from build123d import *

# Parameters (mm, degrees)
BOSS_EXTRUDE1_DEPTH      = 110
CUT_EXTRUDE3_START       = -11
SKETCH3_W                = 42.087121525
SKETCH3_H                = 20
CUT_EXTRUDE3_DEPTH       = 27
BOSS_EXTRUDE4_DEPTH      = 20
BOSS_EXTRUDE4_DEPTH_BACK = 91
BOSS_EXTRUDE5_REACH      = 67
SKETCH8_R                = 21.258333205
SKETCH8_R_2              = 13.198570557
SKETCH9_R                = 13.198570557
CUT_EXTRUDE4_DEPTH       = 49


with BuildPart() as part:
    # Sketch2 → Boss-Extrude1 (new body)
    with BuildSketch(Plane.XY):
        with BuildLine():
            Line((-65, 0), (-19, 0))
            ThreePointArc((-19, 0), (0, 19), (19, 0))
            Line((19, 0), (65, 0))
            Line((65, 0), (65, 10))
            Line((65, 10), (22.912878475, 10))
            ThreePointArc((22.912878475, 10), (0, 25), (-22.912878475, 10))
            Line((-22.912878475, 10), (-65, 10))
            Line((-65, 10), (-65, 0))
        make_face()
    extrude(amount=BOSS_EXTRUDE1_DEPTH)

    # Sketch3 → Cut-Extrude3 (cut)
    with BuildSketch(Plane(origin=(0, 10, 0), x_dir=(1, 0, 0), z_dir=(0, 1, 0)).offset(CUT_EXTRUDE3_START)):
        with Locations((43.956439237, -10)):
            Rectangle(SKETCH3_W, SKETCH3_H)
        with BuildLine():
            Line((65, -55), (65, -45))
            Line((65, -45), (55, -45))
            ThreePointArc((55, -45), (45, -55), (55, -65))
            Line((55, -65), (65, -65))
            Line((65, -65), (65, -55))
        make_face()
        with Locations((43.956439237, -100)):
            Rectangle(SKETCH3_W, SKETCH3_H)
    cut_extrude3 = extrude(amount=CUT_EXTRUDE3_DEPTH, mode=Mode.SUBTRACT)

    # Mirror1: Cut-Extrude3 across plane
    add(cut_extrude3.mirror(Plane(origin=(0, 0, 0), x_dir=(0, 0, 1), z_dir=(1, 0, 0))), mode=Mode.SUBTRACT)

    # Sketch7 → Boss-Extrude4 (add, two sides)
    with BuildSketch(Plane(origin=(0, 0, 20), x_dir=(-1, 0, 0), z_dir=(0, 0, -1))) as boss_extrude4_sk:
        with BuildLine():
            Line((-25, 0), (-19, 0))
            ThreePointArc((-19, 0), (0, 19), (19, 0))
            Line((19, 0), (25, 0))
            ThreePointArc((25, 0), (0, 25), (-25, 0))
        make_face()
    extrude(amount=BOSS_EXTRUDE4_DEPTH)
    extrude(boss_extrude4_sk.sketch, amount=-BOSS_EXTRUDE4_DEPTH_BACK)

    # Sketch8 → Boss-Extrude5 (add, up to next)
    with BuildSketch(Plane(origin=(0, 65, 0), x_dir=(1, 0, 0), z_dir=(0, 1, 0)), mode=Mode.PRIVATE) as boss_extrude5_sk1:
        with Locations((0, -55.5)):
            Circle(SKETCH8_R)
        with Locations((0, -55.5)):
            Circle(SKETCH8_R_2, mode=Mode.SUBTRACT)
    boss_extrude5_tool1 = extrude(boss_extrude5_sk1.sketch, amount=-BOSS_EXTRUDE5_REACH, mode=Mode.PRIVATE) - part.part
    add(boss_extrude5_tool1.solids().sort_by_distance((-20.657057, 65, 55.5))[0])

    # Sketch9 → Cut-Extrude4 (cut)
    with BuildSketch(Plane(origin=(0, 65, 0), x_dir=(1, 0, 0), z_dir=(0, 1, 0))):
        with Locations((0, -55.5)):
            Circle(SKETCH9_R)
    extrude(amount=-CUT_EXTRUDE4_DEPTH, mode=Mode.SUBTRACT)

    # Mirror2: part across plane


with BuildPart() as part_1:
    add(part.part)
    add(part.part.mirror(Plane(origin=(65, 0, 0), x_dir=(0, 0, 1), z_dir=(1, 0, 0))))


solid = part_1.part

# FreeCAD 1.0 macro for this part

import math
import FreeCAD as App
import Part
import Sketcher
Q = App.Units.Quantity

doc = App.newDocument("Part")
body = doc.addObject("PartDesign::Body", "Body")

# Sketch on XY plane
sketch1 = body.newObject("Sketcher::SketchObject", "Sketch")
sketch1.AttachmentSupport = (doc.getObject("XY_Plane"), [""])
sketch1.MapMode = "FlatFace"
sketch1.addGeometry([
    Part.LineSegment(App.Vector(-65, 0, 0), App.Vector(-19, 0, 0)),  # 0
    Part.ArcOfCircle(Part.Circle(App.Vector(0, 0, 0), App.Vector(0, 0, 1), 19), math.radians(0), math.radians(180)),  # 1
    Part.LineSegment(App.Vector(19, 0, 0), App.Vector(65, 0, 0)),  # 2
    Part.LineSegment(App.Vector(65, 0, 0), App.Vector(65, 10, 0)),  # 3
    Part.LineSegment(App.Vector(65, 10, 0), App.Vector(22.912878, 10, 0)),  # 4
    Part.ArcOfCircle(Part.Circle(App.Vector(0, 0, 0), App.Vector(0, 0, 1), 25), math.radians(23.578178), math.radians(156.421822)),  # 5
    Part.LineSegment(App.Vector(-22.912878, 10, 0), App.Vector(-65, 10, 0)),  # 6
    Part.LineSegment(App.Vector(-65, 10, 0), App.Vector(-65, 0, 0)),  # 7
], False)
sketch1.addConstraint([
    Sketcher.Constraint("Coincident", 0, 2, 1, 2),
    Sketcher.Constraint("Coincident", 1, 1, 2, 1),
    Sketcher.Constraint("Coincident", 2, 2, 3, 1),
    Sketcher.Constraint("Coincident", 3, 2, 4, 1),
    Sketcher.Constraint("Coincident", 4, 2, 5, 1),
    Sketcher.Constraint("Coincident", 5, 2, 6, 1),
    Sketcher.Constraint("Coincident", 6, 2, 7, 1),
    Sketcher.Constraint("Coincident", 7, 2, 0, 1),
    Sketcher.Constraint("Horizontal", 0),
    Sketcher.Constraint("Horizontal", 2),
    Sketcher.Constraint("Vertical", 3),
    Sketcher.Constraint("Horizontal", 4),
    Sketcher.Constraint("Horizontal", 6),
    Sketcher.Constraint("Vertical", 7),
    Sketcher.Constraint("Coincident", 1, 3, -1, 1),
    Sketcher.Constraint("Coincident", 5, 3, -1, 1),
    Sketcher.Constraint("Symmetric", 2, 2, 7, 2, -1, 1),
    Sketcher.Constraint("PointOnObject", 0, 2, -1),
    Sketcher.Constraint("Horizontal", 4, 2, 5, 2),
    Sketcher.Constraint("Radius", 1, Q("19 mm")),
    Sketcher.Constraint("Radius", 5, Q("25 mm")),
    Sketcher.Constraint("DistanceX", 0, 1, 0, 2, Q("46 mm")),
    Sketcher.Constraint("DistanceY", 3, 1, 3, 2, Q("10 mm")),
])
pad1 = body.newObject("PartDesign::Pad", "Pad")
pad1.Profile = sketch1
pad1.Length = 110

# Sketch on XZ plane
sketch2 = body.newObject("Sketcher::SketchObject", "Sketch001")
sketch2.AttachmentSupport = (doc.getObject("XZ_Plane"), [""])
sketch2.MapMode = "FlatFace"
sketch2.AttachmentOffset = App.Placement(App.Vector(0, 0, 1), App.Rotation())
sketch2.addGeometry([
    Part.LineSegment(App.Vector(22.912878, 0, 0), App.Vector(22.912878, 20, 0)),  # 0
    Part.LineSegment(App.Vector(22.912878, 20, 0), App.Vector(65, 20, 0)),  # 1
    Part.LineSegment(App.Vector(65, 20, 0), App.Vector(65, 0, 0)),  # 2
    Part.LineSegment(App.Vector(65, 0, 0), App.Vector(22.912878, 0, 0)),  # 3
    Part.LineSegment(App.Vector(65, 45, 0), App.Vector(55, 45, 0)),  # 4
    Part.ArcOfCircle(Part.Circle(App.Vector(55, 55, 0), App.Vector(0, 0, 1), 10), math.radians(90), math.radians(270)),  # 5
    Part.LineSegment(App.Vector(55, 65, 0), App.Vector(65, 65, 0)),  # 6
    Part.LineSegment(App.Vector(65, 65, 0), App.Vector(65, 45, 0)),  # 7
    Part.LineSegment(App.Vector(22.912878, 90, 0), App.Vector(22.912878, 110, 0)),  # 8
    Part.LineSegment(App.Vector(22.912878, 110, 0), App.Vector(65, 110, 0)),  # 9
    Part.LineSegment(App.Vector(65, 110, 0), App.Vector(65, 90, 0)),  # 10
    Part.LineSegment(App.Vector(65, 90, 0), App.Vector(22.912878, 90, 0)),  # 11
], False)
sketch2.addConstraint([
    Sketcher.Constraint("Coincident", 0, 2, 1, 1),
    Sketcher.Constraint("Coincident", 1, 2, 2, 1),
    Sketcher.Constraint("Coincident", 2, 2, 3, 1),
    Sketcher.Constraint("Coincident", 3, 2, 0, 1),
    Sketcher.Constraint("Tangent", 4, 2, 5, 2),
    Sketcher.Constraint("Tangent", 5, 1, 6, 1),
    Sketcher.Constraint("Coincident", 6, 2, 7, 1),
    Sketcher.Constraint("Coincident", 7, 2, 4, 1),
    Sketcher.Constraint("Coincident", 8, 2, 9, 1),
    Sketcher.Constraint("Coincident", 9, 2, 10, 1),
    Sketcher.Constraint("Coincident", 10, 2, 11, 1),
    Sketcher.Constraint("Coincident", 11, 2, 8, 1),
    Sketcher.Constraint("Vertical", 0),
    Sketcher.Constraint("Horizontal", 1),
    Sketcher.Constraint("Vertical", 2),
    Sketcher.Constraint("Horizontal", 3),
    Sketcher.Constraint("Horizontal", 4),
    Sketcher.Constraint("Horizontal", 6),
    Sketcher.Constraint("Vertical", 7),
    Sketcher.Constraint("Vertical", 8),
    Sketcher.Constraint("Horizontal", 9),
    Sketcher.Constraint("Vertical", 10),
    Sketcher.Constraint("Horizontal", 11),
    Sketcher.Constraint("PointOnObject", 2, 2, -1),
    Sketcher.Constraint("Vertical", 2, 2, 6, 2),
    Sketcher.Constraint("Vertical", 3, 2, 8, 2),
    Sketcher.Constraint("Vertical", 7, 2, 9, 2),
    Sketcher.Constraint("Equal", 2, 7),
    Sketcher.Constraint("Equal", 7, 8),
    Sketcher.Constraint("Radius", 5, Q("10 mm")),
    Sketcher.Constraint("DistanceX", 4, 2, 4, 1, Q("10 mm")),
    Sketcher.Constraint("DistanceX", -1, 1, 5, 3, Q("55 mm")),
    Sketcher.Constraint("DistanceY", -1, 1, 5, 3, Q("55 mm")),
    Sketcher.Constraint("DistanceY", -1, 1, 8, 2, Q("110 mm")),
    Sketcher.Constraint("DistanceX", 1, 1, 1, 2, Q("42.087122 mm")),
])
pocket1 = body.newObject("PartDesign::Pocket", "Pocket")
pocket1.Profile = sketch2
pocket1.Length = 27
doc.recompute()

mirrored = body.newObject("PartDesign::Mirrored", "Mirrored")
mirrored.Originals = [pocket1]
mirrored.MirrorPlane = (doc.getObject("YZ_Plane"), [""])
body.Tip = mirrored

# Sketch on XY plane
sketch3 = body.newObject("Sketcher::SketchObject", "Sketch002")
sketch3.AttachmentSupport = (doc.getObject("XY_Plane"), [""])
sketch3.MapMode = "FlatFace"
sketch3.AttachmentOffset = App.Placement(App.Vector(0, 0, 20), App.Rotation())
sketch3.addGeometry([
    Part.LineSegment(App.Vector(25, 0, 0), App.Vector(19, 0, 0)),
    Part.ArcOfCircle(Part.Circle(App.Vector(0, 0, 0), App.Vector(0, 0, 1), 19), math.radians(0), math.radians(180)),
    Part.LineSegment(App.Vector(-19, 0, 0), App.Vector(-25, 0, 0)),
    Part.ArcOfCircle(Part.Circle(App.Vector(0, 0, 0), App.Vector(0, 0, 1), 25), math.radians(0), math.radians(180)),
], False)
sketch3.addConstraint([
    Sketcher.Constraint("Coincident", 0, 2, 1, 1),
    Sketcher.Constraint("Coincident", 1, 2, 2, 1),
    Sketcher.Constraint("Coincident", 2, 2, 3, 2),
    Sketcher.Constraint("Coincident", 3, 1, 0, 1),
    Sketcher.Constraint("Horizontal", 0),
    Sketcher.Constraint("Horizontal", 2),
    Sketcher.Constraint("Coincident", 1, 3, -1, 1),
    Sketcher.Constraint("Coincident", 3, 3, -1, 1),
    Sketcher.Constraint("PointOnObject", 0, 2, -1),
    Sketcher.Constraint("PointOnObject", 1, 2, -1),
    Sketcher.Constraint("Radius", 1, Q("19 mm")),
    Sketcher.Constraint("Radius", 3, Q("25 mm")),
])
pad2 = body.newObject("PartDesign::Pad", "Pad001")
pad2.Profile = sketch3
pad2.Type = "TwoLengths"
pad2.Length = 20
pad2.Length2 = 91
pad2.Reversed = True

# Sketch on XZ plane
sketch4 = body.newObject("Sketcher::SketchObject", "Sketch003")
sketch4.AttachmentSupport = (doc.getObject("XZ_Plane"), [""])
sketch4.MapMode = "FlatFace"
sketch4.AttachmentOffset = App.Placement(App.Vector(0, 0, -65), App.Rotation())
sketch4.addGeometry([
    Part.Circle(App.Vector(0, 55.5, 0), App.Vector(0, 0, 1), 21.258333),
    Part.Circle(App.Vector(0, 55.5, 0), App.Vector(0, 0, 1), 13.198571),
], False)
sketch4.addConstraint([
    Sketcher.Constraint("Coincident", 1, 3, 0, 3),
    Sketcher.Constraint("PointOnObject", 0, 3, -2),
    Sketcher.Constraint("DistanceY", -1, 1, 0, 3, Q("55.5 mm")),
    Sketcher.Constraint("Diameter", 1, Q("26.397141 mm")),
    Sketcher.Constraint("Diameter", 0, Q("42.516666 mm")),
])
pad3 = body.newObject("PartDesign::Pad", "Pad002")
pad3.Profile = sketch4
pad3.Type = "UpToFirst"

# Sketch on XZ plane
sketch5 = body.newObject("Sketcher::SketchObject", "Sketch004")
sketch5.AttachmentSupport = (doc.getObject("XZ_Plane"), [""])
sketch5.MapMode = "FlatFace"
sketch5.AttachmentOffset = App.Placement(App.Vector(0, 0, -65), App.Rotation())
sketch5.addGeometry(Part.Circle(App.Vector(0, 55.5, 0), App.Vector(0, 0, 1), 13.198571), False)
sketch5.addConstraint([
    Sketcher.Constraint("PointOnObject", 0, 3, -2),
    Sketcher.Constraint("DistanceY", -1, 1, 0, 3, Q("55.5 mm")),
    Sketcher.Constraint("Diameter", 0, Q("26.397141 mm")),
])
pocket2 = body.newObject("PartDesign::Pocket", "Pocket001")
pocket2.Profile = sketch5
pocket2.Length = 49
pocket2.Reversed = True
body2 = doc.addObject("PartDesign::Body", "Body001")
doc.recompute()

body2.BaseFeature = body
doc.recompute()

mirroring = doc.addObject("Part::Mirroring", "Mirroring")
mirroring.Source = body
mirroring.Base = App.Vector(65, 0, 0)
mirroring.Normal = App.Vector(1, 0, 0)
body3 = doc.addObject("PartDesign::Body", "Body002")
body3.BaseFeature = mirroring
boolean = body2.newObject("PartDesign::Boolean", "Boolean")
boolean.Type = "Fuse"
boolean.addObjects([body3])
doc.recompute()
mirroring.Visibility = False

doc.recompute()
